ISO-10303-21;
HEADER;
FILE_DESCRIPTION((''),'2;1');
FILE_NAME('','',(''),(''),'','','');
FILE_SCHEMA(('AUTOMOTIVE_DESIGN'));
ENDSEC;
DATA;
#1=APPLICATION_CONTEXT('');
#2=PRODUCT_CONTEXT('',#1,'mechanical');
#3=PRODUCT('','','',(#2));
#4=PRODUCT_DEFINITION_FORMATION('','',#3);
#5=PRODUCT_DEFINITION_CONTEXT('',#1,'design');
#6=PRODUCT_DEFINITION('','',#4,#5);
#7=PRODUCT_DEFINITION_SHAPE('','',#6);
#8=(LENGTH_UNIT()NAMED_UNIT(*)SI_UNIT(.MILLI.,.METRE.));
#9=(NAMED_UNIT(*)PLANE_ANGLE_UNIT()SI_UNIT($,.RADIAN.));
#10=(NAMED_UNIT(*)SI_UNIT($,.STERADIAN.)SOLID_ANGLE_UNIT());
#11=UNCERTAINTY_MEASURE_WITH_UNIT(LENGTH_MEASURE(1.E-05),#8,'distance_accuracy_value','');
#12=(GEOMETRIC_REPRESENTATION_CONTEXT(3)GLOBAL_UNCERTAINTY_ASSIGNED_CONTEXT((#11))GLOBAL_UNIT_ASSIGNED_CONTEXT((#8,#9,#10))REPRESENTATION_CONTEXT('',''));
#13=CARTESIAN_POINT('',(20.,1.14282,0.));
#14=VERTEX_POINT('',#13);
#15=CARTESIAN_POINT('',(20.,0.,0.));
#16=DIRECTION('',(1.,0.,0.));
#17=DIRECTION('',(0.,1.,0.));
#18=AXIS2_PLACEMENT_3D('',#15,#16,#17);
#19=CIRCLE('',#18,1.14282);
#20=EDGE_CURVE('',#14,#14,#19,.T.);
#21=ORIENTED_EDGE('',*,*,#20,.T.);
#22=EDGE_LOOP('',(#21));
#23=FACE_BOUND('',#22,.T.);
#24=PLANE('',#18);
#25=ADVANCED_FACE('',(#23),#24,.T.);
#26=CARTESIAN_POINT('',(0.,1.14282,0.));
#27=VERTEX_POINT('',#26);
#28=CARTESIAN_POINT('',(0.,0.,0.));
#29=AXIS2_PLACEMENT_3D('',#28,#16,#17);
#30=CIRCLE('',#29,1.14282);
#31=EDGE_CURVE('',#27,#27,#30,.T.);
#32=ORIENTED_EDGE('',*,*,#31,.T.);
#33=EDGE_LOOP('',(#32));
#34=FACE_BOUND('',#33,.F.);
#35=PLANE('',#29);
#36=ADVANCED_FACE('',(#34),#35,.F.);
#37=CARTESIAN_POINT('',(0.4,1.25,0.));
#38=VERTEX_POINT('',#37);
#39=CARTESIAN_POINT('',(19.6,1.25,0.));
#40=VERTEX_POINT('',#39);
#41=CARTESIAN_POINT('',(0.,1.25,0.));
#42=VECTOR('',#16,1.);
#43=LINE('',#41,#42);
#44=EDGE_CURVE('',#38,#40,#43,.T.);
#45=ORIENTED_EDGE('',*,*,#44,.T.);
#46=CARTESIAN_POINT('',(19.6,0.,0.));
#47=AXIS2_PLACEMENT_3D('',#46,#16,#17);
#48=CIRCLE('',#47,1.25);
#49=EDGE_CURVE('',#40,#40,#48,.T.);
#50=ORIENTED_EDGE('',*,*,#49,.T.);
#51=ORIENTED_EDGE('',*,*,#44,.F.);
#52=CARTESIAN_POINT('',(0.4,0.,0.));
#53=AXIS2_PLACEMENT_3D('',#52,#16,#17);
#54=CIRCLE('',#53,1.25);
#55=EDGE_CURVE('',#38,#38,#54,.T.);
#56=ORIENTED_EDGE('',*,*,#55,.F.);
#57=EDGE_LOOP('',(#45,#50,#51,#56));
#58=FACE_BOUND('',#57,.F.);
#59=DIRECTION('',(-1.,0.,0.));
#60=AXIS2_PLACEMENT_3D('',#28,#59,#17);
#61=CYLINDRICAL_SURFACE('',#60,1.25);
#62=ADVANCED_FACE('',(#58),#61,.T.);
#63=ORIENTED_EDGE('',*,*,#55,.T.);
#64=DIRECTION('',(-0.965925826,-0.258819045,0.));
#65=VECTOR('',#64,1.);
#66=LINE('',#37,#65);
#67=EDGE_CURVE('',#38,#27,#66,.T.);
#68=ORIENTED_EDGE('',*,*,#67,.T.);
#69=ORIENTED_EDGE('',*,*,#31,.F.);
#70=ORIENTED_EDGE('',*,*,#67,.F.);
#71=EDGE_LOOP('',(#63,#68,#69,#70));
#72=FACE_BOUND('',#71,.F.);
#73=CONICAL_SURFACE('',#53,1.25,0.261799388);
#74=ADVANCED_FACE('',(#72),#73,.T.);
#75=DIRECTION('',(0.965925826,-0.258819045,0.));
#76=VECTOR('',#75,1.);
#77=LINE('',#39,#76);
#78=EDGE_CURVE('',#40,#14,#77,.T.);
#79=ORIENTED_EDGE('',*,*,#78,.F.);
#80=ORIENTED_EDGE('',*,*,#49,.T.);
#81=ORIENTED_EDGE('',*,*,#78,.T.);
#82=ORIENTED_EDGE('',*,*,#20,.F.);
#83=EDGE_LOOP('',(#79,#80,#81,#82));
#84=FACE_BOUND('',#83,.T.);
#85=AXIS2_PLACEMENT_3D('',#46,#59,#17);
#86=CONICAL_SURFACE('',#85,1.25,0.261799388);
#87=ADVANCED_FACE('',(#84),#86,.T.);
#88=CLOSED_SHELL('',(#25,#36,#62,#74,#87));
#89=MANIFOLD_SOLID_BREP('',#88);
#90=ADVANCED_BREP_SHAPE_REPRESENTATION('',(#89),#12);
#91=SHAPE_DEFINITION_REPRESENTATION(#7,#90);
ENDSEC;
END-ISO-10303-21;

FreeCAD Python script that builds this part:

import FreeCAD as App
import Part
import Sketcher
Q = App.Units.Quantity


def edges_at(feature, points):
    """Names of the edges that pass closest to the given points."""
    edges = feature.Shape.Edges
    near = lambda p: min(range(len(edges)), key=lambda i: edges[i].distToShape(Part.Vertex(*p))[0])
    return sorted({f"Edge{near(p) + 1}" for p in points})

doc = App.newDocument("Part")
body = doc.addObject("PartDesign::Body", "Body")

sketch1 = body.newObject("Sketcher::SketchObject", "Sketch")
sketch1.AttachmentSupport = (doc.getObject("YZ_Plane"), [""])
sketch1.MapMode = "FlatFace"
sketch1.addGeometry(Part.Circle(App.Vector(0, 0, 0), App.Vector(0, 0, 1), 1.2), False)
sketch1.addConstraint([
    Sketcher.Constraint("Coincident", 0, 3, -1, 1),
    Sketcher.Constraint("Diameter", 0, Q("2.5 mm")),
])
pad1 = body.newObject("PartDesign::Pad", "Pad")
pad1.Profile = sketch1
pad1.Length = 20
doc.recompute()

chamfer = body.newObject("PartDesign::Chamfer", "Chamfer")
chamfer.Base = (pad1, edges_at(pad1, [(0, -1.25, 0)]))
chamfer.ChamferType = "Distance and Angle"
chamfer.Size = 0.4
chamfer.Angle = 15
doc.recompute()

chamfer2 = body.newObject("PartDesign::Chamfer", "Chamfer001")
chamfer2.Base = (chamfer, edges_at(chamfer, [(20, -1.25, 0)]))
chamfer2.ChamferType = "Distance and Angle"
chamfer2.Size = 0.4
chamfer2.Angle = 15

doc.recompute()
